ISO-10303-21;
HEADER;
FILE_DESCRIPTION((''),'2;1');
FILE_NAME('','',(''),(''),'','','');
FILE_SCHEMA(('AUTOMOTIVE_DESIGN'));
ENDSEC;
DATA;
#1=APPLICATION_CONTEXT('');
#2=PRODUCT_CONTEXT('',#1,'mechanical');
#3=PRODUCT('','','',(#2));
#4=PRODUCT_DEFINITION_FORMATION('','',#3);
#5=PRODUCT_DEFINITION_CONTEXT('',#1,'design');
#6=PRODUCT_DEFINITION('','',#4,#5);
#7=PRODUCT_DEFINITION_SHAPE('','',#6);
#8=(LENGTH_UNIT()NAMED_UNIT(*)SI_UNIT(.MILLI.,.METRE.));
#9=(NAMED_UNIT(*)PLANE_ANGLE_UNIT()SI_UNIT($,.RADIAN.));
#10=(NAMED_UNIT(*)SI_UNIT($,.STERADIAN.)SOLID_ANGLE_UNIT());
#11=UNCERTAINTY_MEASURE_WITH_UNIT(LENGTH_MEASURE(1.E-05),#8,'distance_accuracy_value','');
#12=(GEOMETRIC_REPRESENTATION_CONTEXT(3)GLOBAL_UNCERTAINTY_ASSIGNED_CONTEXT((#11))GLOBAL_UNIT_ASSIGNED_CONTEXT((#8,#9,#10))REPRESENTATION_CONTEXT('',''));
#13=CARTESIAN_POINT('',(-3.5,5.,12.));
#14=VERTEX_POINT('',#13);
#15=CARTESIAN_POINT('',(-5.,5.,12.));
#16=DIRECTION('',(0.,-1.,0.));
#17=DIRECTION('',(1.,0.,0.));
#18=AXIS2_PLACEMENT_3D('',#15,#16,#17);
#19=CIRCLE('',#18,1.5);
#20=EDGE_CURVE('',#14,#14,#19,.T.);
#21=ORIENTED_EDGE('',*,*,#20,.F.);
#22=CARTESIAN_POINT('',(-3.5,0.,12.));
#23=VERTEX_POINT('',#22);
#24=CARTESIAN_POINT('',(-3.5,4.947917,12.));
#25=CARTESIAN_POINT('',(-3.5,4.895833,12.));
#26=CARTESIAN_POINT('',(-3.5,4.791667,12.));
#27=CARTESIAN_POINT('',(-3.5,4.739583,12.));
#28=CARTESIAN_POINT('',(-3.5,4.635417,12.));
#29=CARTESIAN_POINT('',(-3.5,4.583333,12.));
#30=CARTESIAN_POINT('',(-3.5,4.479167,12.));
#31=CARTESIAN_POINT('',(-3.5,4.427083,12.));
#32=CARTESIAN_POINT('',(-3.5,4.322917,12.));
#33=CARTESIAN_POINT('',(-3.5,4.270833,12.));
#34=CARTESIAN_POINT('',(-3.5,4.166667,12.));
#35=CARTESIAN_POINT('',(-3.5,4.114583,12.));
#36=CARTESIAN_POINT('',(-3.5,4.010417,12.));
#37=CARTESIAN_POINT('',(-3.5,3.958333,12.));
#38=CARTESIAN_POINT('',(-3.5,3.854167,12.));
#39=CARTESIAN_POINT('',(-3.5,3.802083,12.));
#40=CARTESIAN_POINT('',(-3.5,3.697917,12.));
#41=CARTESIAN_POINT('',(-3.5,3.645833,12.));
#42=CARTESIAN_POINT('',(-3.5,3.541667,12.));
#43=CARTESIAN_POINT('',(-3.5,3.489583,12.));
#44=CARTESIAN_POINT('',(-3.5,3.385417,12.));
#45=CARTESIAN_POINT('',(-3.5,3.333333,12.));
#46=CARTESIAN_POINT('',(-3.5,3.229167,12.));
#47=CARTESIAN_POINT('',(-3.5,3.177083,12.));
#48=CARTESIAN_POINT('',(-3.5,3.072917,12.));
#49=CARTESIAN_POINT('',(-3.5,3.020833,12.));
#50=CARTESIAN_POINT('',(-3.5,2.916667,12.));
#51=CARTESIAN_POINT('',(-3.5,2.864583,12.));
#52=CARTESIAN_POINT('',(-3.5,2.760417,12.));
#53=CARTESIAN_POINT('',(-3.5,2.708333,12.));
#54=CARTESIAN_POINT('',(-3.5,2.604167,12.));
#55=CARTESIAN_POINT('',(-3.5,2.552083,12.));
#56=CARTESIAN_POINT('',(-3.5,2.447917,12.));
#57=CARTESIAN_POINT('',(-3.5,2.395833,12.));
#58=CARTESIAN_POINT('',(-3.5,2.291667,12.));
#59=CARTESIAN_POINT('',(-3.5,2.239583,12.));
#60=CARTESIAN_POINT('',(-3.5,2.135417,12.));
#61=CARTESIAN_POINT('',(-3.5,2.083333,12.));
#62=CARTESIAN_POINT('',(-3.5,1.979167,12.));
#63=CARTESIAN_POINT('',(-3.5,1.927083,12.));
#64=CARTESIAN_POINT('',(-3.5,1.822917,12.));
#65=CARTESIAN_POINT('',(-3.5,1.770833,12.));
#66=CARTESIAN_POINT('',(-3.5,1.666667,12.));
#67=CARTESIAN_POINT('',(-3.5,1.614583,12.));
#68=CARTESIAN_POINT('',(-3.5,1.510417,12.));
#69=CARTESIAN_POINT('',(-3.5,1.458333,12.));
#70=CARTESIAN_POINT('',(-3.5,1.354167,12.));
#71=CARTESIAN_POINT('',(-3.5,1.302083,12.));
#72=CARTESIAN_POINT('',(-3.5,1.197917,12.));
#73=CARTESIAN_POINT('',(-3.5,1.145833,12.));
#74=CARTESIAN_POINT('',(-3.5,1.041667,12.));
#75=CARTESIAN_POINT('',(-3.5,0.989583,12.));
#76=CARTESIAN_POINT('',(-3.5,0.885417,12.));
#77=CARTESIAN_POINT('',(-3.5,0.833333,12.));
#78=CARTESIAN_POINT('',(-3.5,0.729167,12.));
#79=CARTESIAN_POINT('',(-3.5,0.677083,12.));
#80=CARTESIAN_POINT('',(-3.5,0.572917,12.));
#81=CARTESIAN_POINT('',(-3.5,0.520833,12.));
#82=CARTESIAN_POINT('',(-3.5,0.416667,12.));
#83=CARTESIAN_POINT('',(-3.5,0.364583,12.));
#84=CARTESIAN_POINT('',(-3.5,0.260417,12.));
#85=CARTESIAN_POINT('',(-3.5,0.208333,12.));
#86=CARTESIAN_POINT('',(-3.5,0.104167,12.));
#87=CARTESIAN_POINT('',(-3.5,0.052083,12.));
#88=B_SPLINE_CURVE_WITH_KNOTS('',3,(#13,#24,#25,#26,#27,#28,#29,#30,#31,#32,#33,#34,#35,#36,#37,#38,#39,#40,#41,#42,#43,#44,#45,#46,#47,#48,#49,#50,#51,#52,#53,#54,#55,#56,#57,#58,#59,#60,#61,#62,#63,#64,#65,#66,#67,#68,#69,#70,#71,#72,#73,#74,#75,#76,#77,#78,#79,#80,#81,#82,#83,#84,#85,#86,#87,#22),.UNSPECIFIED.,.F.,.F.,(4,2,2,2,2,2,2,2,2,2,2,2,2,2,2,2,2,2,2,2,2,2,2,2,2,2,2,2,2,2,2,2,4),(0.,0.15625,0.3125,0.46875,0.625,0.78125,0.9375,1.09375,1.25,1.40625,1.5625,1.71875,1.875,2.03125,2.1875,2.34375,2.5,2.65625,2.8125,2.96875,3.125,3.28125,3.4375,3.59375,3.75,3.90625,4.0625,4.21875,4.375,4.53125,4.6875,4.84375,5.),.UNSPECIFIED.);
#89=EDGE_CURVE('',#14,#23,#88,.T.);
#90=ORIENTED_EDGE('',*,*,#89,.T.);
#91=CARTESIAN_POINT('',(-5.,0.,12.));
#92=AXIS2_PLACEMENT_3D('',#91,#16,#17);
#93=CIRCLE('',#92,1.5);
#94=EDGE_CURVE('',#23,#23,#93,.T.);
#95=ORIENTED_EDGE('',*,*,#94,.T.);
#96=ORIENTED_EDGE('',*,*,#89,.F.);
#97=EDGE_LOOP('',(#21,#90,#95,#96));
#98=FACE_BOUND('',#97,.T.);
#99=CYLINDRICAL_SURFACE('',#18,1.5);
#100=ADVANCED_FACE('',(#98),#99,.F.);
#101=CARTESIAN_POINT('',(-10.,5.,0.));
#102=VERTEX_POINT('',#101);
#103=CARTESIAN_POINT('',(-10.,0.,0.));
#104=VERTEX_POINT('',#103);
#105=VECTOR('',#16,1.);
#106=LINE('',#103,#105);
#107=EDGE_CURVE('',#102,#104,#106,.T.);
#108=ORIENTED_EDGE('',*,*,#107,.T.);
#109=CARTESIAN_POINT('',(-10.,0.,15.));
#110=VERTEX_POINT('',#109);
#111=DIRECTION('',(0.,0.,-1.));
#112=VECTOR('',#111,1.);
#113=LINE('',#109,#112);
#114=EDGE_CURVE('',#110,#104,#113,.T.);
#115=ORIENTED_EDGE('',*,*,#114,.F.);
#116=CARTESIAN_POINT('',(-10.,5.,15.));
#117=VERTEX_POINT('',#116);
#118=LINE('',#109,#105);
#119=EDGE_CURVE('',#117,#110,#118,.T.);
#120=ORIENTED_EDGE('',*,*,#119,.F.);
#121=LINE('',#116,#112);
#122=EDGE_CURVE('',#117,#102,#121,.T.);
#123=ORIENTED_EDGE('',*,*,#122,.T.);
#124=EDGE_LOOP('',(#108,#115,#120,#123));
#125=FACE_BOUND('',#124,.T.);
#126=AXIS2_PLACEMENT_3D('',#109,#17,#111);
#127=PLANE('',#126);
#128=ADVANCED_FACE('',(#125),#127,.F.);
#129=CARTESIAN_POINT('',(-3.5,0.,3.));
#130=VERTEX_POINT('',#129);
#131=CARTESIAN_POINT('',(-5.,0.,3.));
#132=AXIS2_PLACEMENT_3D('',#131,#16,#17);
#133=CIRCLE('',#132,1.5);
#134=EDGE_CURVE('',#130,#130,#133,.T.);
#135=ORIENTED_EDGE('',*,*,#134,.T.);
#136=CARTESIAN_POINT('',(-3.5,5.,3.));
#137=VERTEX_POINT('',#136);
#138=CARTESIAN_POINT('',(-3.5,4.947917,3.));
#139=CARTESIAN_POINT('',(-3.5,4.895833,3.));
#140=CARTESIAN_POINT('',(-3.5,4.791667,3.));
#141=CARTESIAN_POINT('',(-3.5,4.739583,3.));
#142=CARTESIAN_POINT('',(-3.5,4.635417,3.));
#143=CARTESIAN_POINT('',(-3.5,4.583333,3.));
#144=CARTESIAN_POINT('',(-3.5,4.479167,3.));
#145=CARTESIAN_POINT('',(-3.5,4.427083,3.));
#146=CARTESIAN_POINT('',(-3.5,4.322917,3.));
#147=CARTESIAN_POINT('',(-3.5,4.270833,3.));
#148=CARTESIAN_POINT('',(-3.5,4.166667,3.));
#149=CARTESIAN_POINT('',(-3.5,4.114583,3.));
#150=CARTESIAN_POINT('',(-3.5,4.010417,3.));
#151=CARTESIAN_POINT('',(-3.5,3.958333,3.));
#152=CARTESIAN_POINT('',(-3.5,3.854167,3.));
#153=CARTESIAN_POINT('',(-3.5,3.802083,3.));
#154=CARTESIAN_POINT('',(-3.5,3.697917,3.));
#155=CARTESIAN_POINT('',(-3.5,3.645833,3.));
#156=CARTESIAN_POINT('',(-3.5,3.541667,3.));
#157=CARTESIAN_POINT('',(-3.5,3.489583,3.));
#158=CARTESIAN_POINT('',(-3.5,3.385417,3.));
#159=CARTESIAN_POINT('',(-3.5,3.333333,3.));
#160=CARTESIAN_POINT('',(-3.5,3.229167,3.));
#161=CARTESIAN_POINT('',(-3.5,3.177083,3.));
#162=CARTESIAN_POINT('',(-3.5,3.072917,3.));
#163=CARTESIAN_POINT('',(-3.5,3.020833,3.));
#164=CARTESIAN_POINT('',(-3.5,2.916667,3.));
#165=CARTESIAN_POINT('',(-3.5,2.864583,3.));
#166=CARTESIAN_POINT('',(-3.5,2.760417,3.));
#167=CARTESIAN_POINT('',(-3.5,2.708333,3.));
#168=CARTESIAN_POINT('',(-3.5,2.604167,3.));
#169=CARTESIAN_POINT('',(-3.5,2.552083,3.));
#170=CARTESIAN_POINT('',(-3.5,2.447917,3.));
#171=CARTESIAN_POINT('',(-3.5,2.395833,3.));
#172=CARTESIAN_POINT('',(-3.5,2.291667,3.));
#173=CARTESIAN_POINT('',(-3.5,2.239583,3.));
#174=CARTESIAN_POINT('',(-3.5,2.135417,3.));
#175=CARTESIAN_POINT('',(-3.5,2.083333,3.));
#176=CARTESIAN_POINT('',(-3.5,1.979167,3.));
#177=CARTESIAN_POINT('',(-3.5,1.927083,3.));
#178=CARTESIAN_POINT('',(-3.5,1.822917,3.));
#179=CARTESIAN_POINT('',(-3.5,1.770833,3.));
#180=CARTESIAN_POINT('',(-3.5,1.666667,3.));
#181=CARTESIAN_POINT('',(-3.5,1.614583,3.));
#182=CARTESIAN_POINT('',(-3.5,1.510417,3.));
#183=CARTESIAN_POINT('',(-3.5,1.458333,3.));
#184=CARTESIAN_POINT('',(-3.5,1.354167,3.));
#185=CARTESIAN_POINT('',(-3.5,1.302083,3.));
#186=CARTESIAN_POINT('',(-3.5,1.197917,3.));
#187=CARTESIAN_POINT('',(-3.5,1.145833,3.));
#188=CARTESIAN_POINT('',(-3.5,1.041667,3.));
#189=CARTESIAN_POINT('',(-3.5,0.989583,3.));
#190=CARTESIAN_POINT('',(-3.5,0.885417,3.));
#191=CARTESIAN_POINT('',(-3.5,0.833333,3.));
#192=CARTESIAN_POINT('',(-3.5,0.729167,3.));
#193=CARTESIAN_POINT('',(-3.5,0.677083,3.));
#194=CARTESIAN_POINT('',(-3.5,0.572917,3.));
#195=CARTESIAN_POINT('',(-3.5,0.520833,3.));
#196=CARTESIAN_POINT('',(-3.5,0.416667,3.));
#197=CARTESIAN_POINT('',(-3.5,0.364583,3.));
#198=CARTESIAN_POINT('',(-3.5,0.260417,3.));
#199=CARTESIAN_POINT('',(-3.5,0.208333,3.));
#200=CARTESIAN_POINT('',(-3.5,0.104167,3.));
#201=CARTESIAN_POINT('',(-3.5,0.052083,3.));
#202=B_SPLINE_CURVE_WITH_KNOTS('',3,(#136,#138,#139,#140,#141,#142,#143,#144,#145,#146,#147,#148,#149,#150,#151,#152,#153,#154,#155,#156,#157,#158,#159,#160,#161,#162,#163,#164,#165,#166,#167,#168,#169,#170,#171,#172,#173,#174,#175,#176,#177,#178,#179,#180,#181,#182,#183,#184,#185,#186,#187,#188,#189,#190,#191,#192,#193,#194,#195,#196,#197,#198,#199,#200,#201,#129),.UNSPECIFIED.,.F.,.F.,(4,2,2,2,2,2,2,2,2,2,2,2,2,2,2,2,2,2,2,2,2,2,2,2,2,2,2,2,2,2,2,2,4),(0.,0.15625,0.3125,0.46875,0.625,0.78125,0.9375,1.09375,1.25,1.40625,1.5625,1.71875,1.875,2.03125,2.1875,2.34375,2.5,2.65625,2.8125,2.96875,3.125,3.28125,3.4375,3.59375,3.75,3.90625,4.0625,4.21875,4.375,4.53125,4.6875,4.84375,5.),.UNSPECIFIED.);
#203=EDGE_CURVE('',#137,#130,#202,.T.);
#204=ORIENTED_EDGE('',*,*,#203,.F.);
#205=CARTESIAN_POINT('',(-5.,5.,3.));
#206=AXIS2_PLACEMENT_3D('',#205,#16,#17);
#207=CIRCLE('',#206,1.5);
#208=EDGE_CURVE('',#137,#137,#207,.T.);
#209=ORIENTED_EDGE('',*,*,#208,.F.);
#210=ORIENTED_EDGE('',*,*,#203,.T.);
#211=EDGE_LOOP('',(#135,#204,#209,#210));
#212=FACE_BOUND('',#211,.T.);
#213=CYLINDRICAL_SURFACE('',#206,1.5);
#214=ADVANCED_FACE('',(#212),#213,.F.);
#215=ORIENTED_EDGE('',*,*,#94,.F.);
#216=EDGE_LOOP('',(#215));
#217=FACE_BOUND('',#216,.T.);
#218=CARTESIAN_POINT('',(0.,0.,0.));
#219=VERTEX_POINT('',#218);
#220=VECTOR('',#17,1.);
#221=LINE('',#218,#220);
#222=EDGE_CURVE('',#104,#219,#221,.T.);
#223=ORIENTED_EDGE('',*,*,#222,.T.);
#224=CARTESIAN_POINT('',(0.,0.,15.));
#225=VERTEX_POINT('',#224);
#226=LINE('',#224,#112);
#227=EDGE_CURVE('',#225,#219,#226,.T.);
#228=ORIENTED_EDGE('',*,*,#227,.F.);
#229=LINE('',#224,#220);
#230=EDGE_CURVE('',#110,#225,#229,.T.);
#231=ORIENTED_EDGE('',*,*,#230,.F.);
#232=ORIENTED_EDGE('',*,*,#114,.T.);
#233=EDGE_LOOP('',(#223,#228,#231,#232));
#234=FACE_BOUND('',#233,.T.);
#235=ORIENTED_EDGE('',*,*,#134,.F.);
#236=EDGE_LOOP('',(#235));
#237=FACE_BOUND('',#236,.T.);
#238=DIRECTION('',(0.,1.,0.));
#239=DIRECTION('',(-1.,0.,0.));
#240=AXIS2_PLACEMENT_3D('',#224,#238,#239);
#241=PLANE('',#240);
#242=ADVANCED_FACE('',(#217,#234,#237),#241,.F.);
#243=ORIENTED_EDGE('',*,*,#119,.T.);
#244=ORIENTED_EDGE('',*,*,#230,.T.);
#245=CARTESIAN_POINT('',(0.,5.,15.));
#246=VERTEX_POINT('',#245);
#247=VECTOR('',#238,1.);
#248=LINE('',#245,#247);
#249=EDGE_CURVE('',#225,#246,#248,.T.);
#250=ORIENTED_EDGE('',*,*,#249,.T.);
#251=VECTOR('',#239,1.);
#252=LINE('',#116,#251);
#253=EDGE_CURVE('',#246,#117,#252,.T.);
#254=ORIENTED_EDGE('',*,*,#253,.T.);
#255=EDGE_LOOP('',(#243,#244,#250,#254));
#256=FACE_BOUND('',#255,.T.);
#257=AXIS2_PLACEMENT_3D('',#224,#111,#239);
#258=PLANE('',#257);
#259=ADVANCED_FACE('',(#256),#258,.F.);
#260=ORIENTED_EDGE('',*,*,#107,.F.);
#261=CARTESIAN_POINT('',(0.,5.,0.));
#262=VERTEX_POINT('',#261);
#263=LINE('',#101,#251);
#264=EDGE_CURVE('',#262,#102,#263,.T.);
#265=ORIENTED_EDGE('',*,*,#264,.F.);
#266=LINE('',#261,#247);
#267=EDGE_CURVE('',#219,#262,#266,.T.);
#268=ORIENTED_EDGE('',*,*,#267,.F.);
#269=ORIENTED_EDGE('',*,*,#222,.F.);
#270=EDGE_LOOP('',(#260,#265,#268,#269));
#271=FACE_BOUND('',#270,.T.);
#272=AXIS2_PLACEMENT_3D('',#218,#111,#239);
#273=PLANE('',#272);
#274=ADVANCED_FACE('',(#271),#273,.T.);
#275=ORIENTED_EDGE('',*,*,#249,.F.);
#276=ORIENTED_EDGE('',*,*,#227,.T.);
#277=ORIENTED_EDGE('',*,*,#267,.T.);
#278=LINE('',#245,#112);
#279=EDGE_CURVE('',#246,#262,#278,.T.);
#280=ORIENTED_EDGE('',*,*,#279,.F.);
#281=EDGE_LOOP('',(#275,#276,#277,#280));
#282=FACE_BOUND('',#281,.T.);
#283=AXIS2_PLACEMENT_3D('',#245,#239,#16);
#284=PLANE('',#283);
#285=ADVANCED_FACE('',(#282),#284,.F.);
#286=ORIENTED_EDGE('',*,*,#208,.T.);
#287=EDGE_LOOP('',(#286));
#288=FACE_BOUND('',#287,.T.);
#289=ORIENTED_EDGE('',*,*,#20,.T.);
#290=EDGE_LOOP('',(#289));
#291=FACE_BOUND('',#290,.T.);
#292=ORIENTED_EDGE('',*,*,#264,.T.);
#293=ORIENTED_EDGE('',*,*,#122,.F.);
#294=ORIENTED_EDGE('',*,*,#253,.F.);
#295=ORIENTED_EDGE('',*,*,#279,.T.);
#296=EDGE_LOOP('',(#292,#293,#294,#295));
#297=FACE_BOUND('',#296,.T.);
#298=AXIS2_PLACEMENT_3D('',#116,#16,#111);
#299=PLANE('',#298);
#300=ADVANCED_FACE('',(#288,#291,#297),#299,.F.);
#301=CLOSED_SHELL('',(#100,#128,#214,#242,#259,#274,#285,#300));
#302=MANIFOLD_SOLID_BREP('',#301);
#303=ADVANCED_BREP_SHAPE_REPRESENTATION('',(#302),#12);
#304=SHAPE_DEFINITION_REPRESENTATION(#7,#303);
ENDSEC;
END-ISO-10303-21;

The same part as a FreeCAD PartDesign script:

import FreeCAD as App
import Part
import Sketcher

doc = App.newDocument("Part")
body = doc.addObject("PartDesign::Body", "Body")

sketch1 = doc.addObject("Sketcher::SketchObject", "Sketch")
body.addObject(sketch1)
sketch1.AttachmentSupport = (doc.XY_Plane, [""])
sketch1.MapMode = "FlatFace"
sketch1.addGeometry(Part.LineSegment(App.Vector(-10, 5, 0), App.Vector(-10, 0, 0)), False)
sketch1.addGeometry(Part.LineSegment(App.Vector(-10, 0, 0), App.Vector(0, 0, 0)), False)
sketch1.addGeometry(Part.LineSegment(App.Vector(0, 0, 0), App.Vector(0, 5, 0)), False)
sketch1.addGeometry(Part.LineSegment(App.Vector(0, 5, 0), App.Vector(-10, 5, 0)), False)
sketch1.addConstraint(Sketcher.Constraint("Coincident", 0, 2, 1, 1))
sketch1.addConstraint(Sketcher.Constraint("Coincident", 1, 2, 2, 1))
sketch1.addConstraint(Sketcher.Constraint("Coincident", 2, 2, 3, 1))
sketch1.addConstraint(Sketcher.Constraint("Coincident", 3, 2, 0, 1))
sketch1.addConstraint(Sketcher.Constraint("Vertical", 0))
sketch1.addConstraint(Sketcher.Constraint("Horizontal", 1))
sketch1.addConstraint(Sketcher.Constraint("Vertical", 2))
sketch1.addConstraint(Sketcher.Constraint("Horizontal", 3))
sketch1.addConstraint(Sketcher.Constraint("Coincident", 1, 2, -1, 1))
sketch1.addConstraint(Sketcher.Constraint("DistanceX", 1, 1, 1, 2, 10.0))
sketch1.addConstraint(Sketcher.Constraint("DistanceY", 0, 2, 0, 1, 5.0))
pad1 = doc.addObject("PartDesign::Pad", "Pad")
body.addObject(pad1)
pad1.Profile = sketch1
pad1.Length = 15

sketch2 = doc.addObject("Sketcher::SketchObject", "Sketch001")
body.addObject(sketch2)
sketch2.AttachmentSupport = (doc.XZ_Plane, [""])
sketch2.MapMode = "FlatFace"
sketch2.addGeometry(Part.Circle(App.Vector(-5, 12, 0), App.Vector(0, 0, 1), 1.5), False)
sketch2.addGeometry(Part.Circle(App.Vector(-5, 3, 0), App.Vector(0, 0, 1), 1.5), False)
sketch2.addConstraint(Sketcher.Constraint("Equal", 0, 1))
sketch2.addConstraint(Sketcher.Constraint("Vertical", 0, 3, 1, 3))
sketch2.addConstraint(Sketcher.Constraint("Diameter", 0, 3.0))
sketch2.addConstraint(Sketcher.Constraint("DistanceX", 0, 3, -1, 1, 5.0))
sketch2.addConstraint(Sketcher.Constraint("DistanceY", -1, 1, 0, 3, 12.0))
sketch2.addConstraint(Sketcher.Constraint("DistanceY", -1, 1, 1, 3, 3.0))
pocket1 = doc.addObject("PartDesign::Pocket", "Pocket")
body.addObject(pocket1)
pocket1.Profile = sketch2
pocket1.Type = "ThroughAll"

doc.recompute()
